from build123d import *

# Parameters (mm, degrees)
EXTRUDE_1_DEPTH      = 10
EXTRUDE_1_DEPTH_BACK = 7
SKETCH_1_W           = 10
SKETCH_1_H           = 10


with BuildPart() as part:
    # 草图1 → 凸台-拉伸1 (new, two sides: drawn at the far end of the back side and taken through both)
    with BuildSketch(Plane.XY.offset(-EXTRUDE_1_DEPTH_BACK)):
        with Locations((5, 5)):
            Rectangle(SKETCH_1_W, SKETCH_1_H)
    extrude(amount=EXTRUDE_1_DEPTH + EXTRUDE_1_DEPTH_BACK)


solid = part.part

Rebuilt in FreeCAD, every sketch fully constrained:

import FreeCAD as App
import Part
import Sketcher
from FreeCAD import Vector


def add_polygon(sketch, points):
    """Adds a closed chain of lines whose ends are joined by coincident constraints."""
    first, n = sketch.GeometryCount, len(points)
    for a, b in zip(points, points[1:] + points[:1]):
        sketch.addGeometry(Part.LineSegment(App.Vector(*a, 0), App.Vector(*b, 0)), False)
    for i in range(n):
        sketch.addConstraint(Sketcher.Constraint("Coincident", first + i, 2, first + (i + 1) % n, 1))

doc = App.newDocument("Part")
body = doc.addObject("PartDesign::Body", "Body")

# Sketch on XY plane
sketch1 = doc.addObject("Sketcher::SketchObject", "Sketch")
body.addObject(sketch1)
sketch1.AttachmentSupport = (doc.XY_Plane, [""])
sketch1.MapMode = "FlatFace"
add_polygon(sketch1, [(0, 10), (0, 0), (10, 0), (10, 10)])  # lines 0-3
sketch1.addConstraint([
    Sketcher.Constraint("Vertical", 0),
    Sketcher.Constraint("Horizontal", 1),
    Sketcher.Constraint("Vertical", 2),
    Sketcher.Constraint("Horizontal", 3),
    Sketcher.Constraint("Coincident", 0, 2, -1, 1),
    Sketcher.Constraint("Equal", 3, 0),
    Sketcher.Constraint("DistanceX", 1, 1, 1, 2, 10.0),
])
pad1 = doc.addObject("PartDesign::Pad", "Pad")
body.addObject(pad1)
pad1.Profile = sketch1
pad1.Type = "TwoLengths"
pad1.Length = 10
pad1.Length2 = 7

doc.recompute()
